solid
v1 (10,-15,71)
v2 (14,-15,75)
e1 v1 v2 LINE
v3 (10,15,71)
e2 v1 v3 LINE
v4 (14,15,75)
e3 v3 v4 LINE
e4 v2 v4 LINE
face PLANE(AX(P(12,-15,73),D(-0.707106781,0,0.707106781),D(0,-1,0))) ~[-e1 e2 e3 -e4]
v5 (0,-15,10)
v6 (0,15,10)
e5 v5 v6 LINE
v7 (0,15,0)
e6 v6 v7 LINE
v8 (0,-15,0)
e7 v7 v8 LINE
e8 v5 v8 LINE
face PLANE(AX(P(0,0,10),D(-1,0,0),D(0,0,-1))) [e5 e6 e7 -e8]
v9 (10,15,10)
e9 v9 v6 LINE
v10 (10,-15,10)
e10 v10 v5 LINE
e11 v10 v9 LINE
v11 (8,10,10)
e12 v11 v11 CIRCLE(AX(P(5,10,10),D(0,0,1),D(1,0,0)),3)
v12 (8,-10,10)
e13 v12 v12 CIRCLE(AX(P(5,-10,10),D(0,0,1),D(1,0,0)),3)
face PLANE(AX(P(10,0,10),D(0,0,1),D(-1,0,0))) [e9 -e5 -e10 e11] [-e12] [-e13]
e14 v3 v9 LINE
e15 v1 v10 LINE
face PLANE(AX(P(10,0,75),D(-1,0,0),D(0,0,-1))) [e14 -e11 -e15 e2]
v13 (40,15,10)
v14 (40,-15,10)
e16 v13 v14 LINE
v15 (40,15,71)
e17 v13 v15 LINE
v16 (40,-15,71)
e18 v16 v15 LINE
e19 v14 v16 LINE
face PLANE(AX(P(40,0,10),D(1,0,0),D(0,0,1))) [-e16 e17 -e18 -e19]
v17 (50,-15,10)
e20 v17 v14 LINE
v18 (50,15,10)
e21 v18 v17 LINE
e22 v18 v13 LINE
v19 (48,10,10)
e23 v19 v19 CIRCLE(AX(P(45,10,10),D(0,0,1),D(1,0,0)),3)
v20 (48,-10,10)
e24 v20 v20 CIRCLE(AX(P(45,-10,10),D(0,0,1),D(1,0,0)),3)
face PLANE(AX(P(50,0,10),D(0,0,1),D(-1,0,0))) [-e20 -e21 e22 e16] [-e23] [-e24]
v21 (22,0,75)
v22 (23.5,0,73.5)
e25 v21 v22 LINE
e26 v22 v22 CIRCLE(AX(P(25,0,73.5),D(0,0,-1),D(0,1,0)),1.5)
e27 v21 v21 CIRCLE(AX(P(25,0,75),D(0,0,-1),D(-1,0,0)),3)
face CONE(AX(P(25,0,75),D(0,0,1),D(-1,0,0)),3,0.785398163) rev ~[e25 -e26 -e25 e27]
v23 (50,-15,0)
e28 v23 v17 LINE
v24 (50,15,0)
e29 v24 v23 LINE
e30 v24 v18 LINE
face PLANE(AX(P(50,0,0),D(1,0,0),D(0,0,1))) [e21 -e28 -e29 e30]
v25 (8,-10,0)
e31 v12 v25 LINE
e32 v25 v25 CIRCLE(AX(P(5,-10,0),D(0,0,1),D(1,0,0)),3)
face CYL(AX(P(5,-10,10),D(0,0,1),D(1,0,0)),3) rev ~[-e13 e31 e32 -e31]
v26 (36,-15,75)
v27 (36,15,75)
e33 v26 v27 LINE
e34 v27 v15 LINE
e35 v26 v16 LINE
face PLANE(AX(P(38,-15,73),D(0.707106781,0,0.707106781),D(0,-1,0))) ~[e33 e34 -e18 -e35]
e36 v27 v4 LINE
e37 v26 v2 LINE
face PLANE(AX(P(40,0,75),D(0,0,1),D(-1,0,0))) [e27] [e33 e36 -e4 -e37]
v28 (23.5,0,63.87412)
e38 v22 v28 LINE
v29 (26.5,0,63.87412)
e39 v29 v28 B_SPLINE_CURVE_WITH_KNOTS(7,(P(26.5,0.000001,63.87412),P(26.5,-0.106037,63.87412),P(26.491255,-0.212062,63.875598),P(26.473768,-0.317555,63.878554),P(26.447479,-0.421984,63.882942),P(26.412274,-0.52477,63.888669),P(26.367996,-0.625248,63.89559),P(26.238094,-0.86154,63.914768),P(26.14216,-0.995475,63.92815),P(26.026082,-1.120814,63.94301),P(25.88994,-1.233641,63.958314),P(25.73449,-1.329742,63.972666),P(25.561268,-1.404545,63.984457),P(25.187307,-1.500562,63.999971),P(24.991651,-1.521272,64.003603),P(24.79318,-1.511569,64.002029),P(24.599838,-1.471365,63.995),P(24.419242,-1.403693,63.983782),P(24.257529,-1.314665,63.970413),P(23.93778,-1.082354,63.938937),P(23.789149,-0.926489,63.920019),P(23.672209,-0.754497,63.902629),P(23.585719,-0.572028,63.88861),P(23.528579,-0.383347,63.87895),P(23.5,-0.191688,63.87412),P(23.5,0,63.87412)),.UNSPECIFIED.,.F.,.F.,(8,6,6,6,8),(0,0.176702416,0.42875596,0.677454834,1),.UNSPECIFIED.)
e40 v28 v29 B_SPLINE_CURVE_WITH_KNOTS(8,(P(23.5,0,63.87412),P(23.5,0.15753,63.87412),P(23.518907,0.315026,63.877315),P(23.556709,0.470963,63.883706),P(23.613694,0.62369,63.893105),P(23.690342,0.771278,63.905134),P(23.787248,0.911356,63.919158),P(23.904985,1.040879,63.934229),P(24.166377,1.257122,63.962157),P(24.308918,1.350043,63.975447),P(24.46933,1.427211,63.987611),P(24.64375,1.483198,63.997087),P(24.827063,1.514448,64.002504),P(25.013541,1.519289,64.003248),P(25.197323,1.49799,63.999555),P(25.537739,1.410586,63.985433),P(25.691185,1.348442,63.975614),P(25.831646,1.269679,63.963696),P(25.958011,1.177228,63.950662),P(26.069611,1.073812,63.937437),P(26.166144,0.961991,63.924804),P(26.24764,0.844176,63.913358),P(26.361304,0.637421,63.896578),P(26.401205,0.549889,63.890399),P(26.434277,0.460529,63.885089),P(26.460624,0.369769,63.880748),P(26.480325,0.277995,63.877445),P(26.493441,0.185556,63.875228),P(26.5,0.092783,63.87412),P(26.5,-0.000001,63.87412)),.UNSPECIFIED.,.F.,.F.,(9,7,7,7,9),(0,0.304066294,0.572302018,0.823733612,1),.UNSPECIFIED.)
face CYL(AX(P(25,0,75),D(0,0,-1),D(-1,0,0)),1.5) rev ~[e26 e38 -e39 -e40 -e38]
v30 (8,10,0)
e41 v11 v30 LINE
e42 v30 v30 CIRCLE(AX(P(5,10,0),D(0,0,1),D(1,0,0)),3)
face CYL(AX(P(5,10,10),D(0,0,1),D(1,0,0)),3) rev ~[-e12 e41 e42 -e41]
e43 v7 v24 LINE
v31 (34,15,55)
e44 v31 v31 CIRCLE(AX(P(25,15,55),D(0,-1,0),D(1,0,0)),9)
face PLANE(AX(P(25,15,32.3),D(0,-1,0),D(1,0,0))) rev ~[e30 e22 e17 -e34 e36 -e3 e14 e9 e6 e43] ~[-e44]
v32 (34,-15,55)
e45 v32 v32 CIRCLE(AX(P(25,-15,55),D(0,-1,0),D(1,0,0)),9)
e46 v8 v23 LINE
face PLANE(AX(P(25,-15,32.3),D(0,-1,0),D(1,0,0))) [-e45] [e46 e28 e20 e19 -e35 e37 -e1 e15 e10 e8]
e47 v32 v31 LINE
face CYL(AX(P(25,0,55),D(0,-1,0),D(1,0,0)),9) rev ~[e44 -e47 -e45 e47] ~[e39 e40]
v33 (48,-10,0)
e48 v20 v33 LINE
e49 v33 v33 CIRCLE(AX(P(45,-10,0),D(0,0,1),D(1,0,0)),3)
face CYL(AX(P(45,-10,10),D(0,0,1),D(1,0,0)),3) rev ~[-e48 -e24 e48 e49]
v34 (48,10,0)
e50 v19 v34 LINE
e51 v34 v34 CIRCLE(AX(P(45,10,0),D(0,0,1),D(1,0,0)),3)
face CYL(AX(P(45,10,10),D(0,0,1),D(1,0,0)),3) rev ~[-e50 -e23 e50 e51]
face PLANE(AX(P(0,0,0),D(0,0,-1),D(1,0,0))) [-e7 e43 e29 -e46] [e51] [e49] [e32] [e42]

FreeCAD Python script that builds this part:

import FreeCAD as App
import Part
import Sketcher
from FreeCAD import Vector


def edges_at(feature, points):
    """Names of the edges that pass closest to the given points."""
    edges = feature.Shape.Edges
    near = lambda p: min(range(len(edges)), key=lambda i: edges[i].distToShape(Part.Vertex(*p))[0])
    return sorted({f"Edge{near(p) + 1}" for p in points})

doc = App.newDocument("Part")
params = doc.addObject("Spreadsheet::Sheet", "Params")
for row, (alias, value) in enumerate([
    ("sketch1_diameter", "18 mm"),
    ("sketch1_width", "50 mm"),
    ("sketch1_width2", "10 mm"),
    ("sketch1_height", "65 mm"),
    ("pad1_length", "15 mm"),
    ("pad1_length2", "15 mm"),
    ("sketch2_diameter", "3 mm"),
    ("hole_diameter", "3 mm"),
    ("hole_depth", "20 mm"),
    ("hole_csink_diameter", "6 mm"),
    ("sketch3_diameter", "6 mm"),
    ("pocket1_length", "10 mm"),
    ("chamfer_size", "4 mm"),
], start=1):
    params.set(f"A{row}", alias)
    params.set(f"B{row}", "=" + value)
    params.setAlias(f"B{row}", alias)

body = doc.addObject("PartDesign::Body", "Body")

# Sketch on XZ plane
sketch1 = body.newObject("Sketcher::SketchObject", "Sketch")
sketch1.AttachmentSupport = (doc.getObject("XZ_Plane"), [""])
sketch1.MapMode = "FlatFace"
sketch1.addGeometry([
    Part.LineSegment(Vector(0, 10, 0), Vector(0, 0, 0)),  # 0
    Part.LineSegment(Vector(0, 0, 0), Vector(50, 0, 0)),  # 1
    Part.LineSegment(Vector(50, 0, 0), Vector(50, 10, 0)),  # 2
    Part.LineSegment(Vector(50, 10, 0), Vector(40, 10, 0)),  # 3
    Part.LineSegment(Vector(40, 10, 0), Vector(40, 75, 0)),  # 4
    Part.LineSegment(Vector(40, 75, 0), Vector(10, 75, 0)),  # 5
    Part.LineSegment(Vector(10, 75, 0), Vector(10, 10, 0)),  # 6
    Part.LineSegment(Vector(10, 10, 0), Vector(0, 10, 0)),  # 7
    Part.Circle(Vector(25, 55, 0), Vector(0, 0, 1), 9),  # 8
], False)
sketch1.addConstraint([
    Sketcher.Constraint("Coincident", 0, 2, 1, 1),
    Sketcher.Constraint("Coincident", 1, 2, 2, 1),
    Sketcher.Constraint("Coincident", 2, 2, 3, 1),
    Sketcher.Constraint("Coincident", 3, 2, 4, 1),
    Sketcher.Constraint("Coincident", 4, 2, 5, 1),
    Sketcher.Constraint("Coincident", 5, 2, 6, 1),
    Sketcher.Constraint("Coincident", 6, 2, 7, 1),
    Sketcher.Constraint("Coincident", 7, 2, 0, 1),
    Sketcher.Constraint("Vertical", 0),
    Sketcher.Constraint("Horizontal", 1),
    Sketcher.Constraint("Vertical", 2),
    Sketcher.Constraint("Horizontal", 3),
    Sketcher.Constraint("Vertical", 4),
    Sketcher.Constraint("Horizontal", 5),
    Sketcher.Constraint("Vertical", 6),
    Sketcher.Constraint("Horizontal", 7),
    Sketcher.Constraint("Coincident", 0, 2, -1, 1),
    Sketcher.Constraint("Horizontal", 3, 2, 6, 2),
    Sketcher.Constraint("Equal", 3, 7),
    Sketcher.Constraint("Equal", 7, 0),
    Sketcher.Constraint("Diameter", 8, 18.0),
    Sketcher.Constraint("DistanceX", 1, 1, 1, 2, 50.0),
    Sketcher.Constraint("DistanceX", 3, 2, 3, 1, 10.0),
    Sketcher.Constraint("DistanceY", 4, 1, 4, 2, 65.0),
    Sketcher.Constraint("DistanceX", -1, 1, 8, 3, 25.0),
    Sketcher.Constraint("DistanceY", -1, 1, 8, 3, 55.0),
])
sketch1.setExpression("Constraints[20]", "Params.sketch1_diameter")
sketch1.setExpression("Constraints[21]", "Params.sketch1_width")
sketch1.setExpression("Constraints[22]", "Params.sketch1_width2")
sketch1.setExpression("Constraints[23]", "Params.sketch1_height")
pad1 = body.newObject("PartDesign::Pad", "Pad")
pad1.Profile = sketch1
pad1.Type = "TwoLengths"
pad1.setExpression("Length", "Params.pad1_length")
pad1.setExpression("Length2", "Params.pad1_length2")

# Sketch on XY plane
sketch2 = body.newObject("Sketcher::SketchObject", "Sketch001")
sketch2.AttachmentSupport = (doc.getObject("XY_Plane"), [""])
sketch2.MapMode = "FlatFace"
sketch2.AttachmentOffset = App.Placement(Vector(0, 0, 75), App.Rotation())
sketch2.addGeometry(Part.Circle(Vector(25, 0, 0), Vector(0, 0, 1), 1.5), False)
sketch2.addConstraint([
    Sketcher.Constraint("PointOnObject", 0, 3, -1),
    Sketcher.Constraint("Diameter", 0, 3.0),
    Sketcher.Constraint("DistanceX", -1, 1, 0, 3, 25.0),
])
sketch2.setExpression("Constraints[1]", "Params.sketch2_diameter")
doc.recompute()
hole = body.newObject("PartDesign::Hole", "Hole")
hole.Profile = sketch2
hole.ThreadType = "None"
hole.setExpression("Diameter", "Params.hole_diameter")
hole.DepthType = "Dimension"
hole.setExpression("Depth", "Params.hole_depth")
hole.DrillPoint = "Flat"
hole.HoleCutType = "Countersink"
hole.setExpression("HoleCutDiameter", "Params.hole_csink_diameter")
hole.HoleCutCountersinkAngle = 90

# Sketch on XY plane
sketch3 = body.newObject("Sketcher::SketchObject", "Sketch002")
sketch3.AttachmentSupport = (doc.getObject("XY_Plane"), [""])
sketch3.MapMode = "FlatFace"
sketch3.AttachmentOffset = App.Placement(Vector(0, 0, 10), App.Rotation())
sketch3.addGeometry([
    Part.Circle(Vector(5, 10, 0), Vector(0, 0, 1), 3),
    Part.Circle(Vector(5, -10, 0), Vector(0, 0, 1), 3),
    Part.Circle(Vector(45, -10, 0), Vector(0, 0, 1), 3),
    Part.Circle(Vector(45, 10, 0), Vector(0, 0, 1), 3),
], False)
sketch3.addConstraint([
    Sketcher.Constraint("Equal", 0, 1),
    Sketcher.Constraint("Equal", 1, 2),
    Sketcher.Constraint("Equal", 2, 3),
    Sketcher.Constraint("Symmetric", 0, 3, 1, 3, -1),
    Sketcher.Constraint("Symmetric", 2, 3, 3, 3, -1),
    Sketcher.Constraint("Horizontal", 1, 3, 2, 3),
    Sketcher.Constraint("Diameter", 0, 6.0),
    Sketcher.Constraint("DistanceX", -1, 1, 0, 3, 5.0),
    Sketcher.Constraint("DistanceY", -1, 1, 0, 3, 10.0),
    Sketcher.Constraint("DistanceX", -1, 1, 2, 3, 45.0),
])
sketch3.setExpression("Constraints[6]", "Params.sketch3_diameter")
pocket1 = body.newObject("PartDesign::Pocket", "Pocket")
pocket1.Profile = sketch3
pocket1.setExpression("Length", "Params.pocket1_length")
doc.recompute()

chamfer = body.newObject("PartDesign::Chamfer", "Chamfer")
chamfer.Base = (pocket1, edges_at(pocket1, [(40, 0, 75), (10, 0, 75)]))
chamfer.setExpression("Size", "Params.chamfer_size")

doc.recompute()
